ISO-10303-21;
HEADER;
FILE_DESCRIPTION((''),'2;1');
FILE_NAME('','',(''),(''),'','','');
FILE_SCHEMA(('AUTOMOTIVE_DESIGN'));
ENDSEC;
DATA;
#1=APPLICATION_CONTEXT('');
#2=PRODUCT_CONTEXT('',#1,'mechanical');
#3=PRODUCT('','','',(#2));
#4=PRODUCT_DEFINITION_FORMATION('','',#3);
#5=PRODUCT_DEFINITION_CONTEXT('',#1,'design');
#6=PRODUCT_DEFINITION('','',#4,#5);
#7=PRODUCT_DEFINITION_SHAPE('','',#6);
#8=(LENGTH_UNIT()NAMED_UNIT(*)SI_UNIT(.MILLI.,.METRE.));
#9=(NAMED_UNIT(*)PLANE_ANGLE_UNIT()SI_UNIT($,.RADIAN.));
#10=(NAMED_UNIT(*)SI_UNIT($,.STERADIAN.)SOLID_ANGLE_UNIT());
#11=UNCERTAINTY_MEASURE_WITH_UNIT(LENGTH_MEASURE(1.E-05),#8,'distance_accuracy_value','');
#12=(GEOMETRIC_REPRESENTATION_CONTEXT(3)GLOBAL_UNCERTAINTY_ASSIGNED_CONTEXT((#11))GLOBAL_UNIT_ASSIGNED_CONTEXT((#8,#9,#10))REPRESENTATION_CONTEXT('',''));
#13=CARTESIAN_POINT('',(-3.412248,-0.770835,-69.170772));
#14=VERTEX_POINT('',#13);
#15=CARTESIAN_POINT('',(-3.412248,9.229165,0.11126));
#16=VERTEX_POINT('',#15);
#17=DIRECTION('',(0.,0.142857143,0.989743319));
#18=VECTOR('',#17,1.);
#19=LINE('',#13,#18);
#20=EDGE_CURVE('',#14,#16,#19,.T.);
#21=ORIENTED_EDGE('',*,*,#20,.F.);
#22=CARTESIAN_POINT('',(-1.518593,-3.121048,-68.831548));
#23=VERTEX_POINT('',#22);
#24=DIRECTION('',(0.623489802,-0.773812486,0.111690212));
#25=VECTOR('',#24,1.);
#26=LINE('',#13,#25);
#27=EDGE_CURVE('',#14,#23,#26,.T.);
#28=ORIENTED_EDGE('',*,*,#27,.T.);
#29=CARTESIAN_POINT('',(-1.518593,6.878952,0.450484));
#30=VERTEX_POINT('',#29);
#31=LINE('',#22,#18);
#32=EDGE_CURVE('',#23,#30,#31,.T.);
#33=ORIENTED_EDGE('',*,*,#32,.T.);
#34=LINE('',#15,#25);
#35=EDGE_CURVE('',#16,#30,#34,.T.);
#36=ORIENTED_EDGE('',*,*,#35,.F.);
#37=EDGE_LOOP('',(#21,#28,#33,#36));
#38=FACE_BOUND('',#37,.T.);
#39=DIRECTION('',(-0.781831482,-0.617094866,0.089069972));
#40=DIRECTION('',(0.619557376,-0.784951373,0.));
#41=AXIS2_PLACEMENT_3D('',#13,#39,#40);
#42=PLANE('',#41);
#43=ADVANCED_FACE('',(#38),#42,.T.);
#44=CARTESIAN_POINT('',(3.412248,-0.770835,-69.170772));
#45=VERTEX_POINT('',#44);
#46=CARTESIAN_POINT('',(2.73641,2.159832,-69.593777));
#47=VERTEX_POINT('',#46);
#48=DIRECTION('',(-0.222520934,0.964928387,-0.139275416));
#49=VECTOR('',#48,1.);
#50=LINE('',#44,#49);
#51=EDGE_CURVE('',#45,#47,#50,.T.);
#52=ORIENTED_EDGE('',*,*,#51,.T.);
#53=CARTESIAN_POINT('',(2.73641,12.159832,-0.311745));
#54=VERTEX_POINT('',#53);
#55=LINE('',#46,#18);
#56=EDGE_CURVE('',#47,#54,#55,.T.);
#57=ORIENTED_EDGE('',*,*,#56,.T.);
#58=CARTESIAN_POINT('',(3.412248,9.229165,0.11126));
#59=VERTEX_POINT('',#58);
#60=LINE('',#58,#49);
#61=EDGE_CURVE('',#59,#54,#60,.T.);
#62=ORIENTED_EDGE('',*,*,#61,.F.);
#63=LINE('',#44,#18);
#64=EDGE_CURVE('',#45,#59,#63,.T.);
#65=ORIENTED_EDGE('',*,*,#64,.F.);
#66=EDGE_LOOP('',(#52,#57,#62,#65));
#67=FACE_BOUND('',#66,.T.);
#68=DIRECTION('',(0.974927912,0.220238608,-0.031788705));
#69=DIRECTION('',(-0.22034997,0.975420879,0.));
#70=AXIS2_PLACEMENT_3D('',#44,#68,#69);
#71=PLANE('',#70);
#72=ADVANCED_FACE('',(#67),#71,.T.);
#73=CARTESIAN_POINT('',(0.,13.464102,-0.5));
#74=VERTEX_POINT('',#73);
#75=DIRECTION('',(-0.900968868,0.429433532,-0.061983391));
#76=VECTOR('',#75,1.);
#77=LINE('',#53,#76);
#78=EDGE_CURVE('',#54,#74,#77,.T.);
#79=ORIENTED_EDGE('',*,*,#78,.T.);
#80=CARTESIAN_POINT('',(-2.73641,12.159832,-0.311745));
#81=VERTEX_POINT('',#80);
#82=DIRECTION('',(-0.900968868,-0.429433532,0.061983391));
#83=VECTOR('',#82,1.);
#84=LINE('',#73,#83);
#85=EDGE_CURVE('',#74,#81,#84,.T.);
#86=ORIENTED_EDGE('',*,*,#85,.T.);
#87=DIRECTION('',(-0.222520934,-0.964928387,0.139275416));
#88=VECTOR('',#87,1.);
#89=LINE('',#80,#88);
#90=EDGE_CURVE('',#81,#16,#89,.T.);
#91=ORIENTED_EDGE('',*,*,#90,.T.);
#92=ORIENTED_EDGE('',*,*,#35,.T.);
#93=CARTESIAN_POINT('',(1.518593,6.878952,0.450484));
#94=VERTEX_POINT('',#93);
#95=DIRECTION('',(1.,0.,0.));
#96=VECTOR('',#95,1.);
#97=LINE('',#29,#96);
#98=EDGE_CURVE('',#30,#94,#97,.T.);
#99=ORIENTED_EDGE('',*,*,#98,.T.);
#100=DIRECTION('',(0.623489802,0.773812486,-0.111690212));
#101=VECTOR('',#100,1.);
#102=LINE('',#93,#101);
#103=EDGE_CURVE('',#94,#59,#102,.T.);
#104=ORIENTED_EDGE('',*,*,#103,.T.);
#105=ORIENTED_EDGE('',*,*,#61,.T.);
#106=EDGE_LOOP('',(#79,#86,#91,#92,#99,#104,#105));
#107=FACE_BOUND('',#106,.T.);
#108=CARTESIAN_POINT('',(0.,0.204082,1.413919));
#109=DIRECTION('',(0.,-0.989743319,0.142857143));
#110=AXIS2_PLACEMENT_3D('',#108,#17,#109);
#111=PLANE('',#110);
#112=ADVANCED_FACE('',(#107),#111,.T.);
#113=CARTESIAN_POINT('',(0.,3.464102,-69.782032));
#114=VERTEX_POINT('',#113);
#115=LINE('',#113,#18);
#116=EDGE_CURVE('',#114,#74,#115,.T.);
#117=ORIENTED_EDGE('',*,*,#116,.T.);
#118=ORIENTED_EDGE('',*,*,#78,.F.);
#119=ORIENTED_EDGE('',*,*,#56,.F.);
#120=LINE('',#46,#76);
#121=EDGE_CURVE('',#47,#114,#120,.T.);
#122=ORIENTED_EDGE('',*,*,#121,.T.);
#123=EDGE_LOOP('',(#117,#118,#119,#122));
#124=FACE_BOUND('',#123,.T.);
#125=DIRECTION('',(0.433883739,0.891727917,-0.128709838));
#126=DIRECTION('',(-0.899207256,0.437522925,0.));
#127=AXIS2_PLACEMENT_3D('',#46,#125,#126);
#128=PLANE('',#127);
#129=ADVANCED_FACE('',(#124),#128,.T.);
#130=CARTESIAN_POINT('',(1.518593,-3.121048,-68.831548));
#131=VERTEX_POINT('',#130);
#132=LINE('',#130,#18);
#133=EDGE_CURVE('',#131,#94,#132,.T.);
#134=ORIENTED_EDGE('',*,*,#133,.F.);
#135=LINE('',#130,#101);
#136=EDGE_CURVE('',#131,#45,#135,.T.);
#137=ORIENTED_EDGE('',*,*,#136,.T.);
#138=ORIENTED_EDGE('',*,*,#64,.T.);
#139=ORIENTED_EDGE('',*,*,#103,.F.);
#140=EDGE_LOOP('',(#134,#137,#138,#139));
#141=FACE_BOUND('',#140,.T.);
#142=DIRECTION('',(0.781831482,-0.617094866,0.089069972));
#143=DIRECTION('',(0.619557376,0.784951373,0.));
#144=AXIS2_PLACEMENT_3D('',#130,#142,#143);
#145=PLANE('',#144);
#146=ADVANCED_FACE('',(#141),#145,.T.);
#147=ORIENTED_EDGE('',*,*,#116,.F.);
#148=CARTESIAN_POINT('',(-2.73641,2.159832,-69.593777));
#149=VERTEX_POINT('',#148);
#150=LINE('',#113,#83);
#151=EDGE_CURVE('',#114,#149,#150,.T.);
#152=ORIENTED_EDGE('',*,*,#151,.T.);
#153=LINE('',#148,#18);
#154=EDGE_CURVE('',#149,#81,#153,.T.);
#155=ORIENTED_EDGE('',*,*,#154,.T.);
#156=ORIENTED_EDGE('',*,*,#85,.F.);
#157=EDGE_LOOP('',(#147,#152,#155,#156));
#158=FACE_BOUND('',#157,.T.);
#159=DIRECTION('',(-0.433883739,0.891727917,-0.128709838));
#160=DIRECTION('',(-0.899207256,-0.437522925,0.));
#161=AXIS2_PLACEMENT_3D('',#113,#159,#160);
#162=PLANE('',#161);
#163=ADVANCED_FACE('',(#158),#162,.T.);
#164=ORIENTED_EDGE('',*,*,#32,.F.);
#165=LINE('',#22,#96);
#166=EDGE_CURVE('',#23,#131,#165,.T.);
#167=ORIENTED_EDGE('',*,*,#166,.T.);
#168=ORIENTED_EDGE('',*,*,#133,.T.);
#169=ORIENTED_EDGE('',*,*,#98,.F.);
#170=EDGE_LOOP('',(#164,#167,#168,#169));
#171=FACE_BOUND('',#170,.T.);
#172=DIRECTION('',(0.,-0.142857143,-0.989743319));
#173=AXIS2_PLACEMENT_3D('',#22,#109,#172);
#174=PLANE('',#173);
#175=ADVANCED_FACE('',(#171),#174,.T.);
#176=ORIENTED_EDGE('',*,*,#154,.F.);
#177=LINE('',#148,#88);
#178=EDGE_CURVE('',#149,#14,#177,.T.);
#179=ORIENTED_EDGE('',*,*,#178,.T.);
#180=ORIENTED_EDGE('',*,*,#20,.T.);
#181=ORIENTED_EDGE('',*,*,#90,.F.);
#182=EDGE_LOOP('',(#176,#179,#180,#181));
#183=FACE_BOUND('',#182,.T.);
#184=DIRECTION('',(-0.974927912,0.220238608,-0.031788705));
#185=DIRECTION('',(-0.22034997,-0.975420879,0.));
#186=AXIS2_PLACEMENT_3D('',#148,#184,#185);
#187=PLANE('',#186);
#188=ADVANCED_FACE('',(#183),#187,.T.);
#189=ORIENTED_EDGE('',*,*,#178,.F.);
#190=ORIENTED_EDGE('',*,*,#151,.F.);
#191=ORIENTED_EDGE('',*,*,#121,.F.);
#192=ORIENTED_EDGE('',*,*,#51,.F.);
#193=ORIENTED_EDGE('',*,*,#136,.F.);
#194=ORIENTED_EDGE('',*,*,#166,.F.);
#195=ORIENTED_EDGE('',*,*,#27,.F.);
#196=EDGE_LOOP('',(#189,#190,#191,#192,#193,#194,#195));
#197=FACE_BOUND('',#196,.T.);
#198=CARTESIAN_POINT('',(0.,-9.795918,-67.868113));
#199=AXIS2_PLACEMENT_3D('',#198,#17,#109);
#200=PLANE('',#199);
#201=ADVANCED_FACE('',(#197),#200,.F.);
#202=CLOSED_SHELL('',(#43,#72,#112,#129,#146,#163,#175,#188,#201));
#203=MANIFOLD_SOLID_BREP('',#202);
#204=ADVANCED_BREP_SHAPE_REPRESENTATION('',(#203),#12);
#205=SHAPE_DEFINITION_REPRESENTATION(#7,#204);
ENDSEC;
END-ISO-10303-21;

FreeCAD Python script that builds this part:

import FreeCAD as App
import Part
import Sketcher

V = App.Vector
Q = App.Units.Quantity

doc = App.newDocument("Part")
params = doc.addObject("Spreadsheet::Sheet", "Params")
for row, (alias, value) in enumerate([
    ("sketch2_width", "70 mm"),
], start=1):
    params.set(f"A{row}", alias)
    params.set(f"B{row}", "=" + value)
    params.setAlias(f"B{row}", alias)

body = doc.addObject("PartDesign::Body", "Body")

# Sketch on an angled plane
sketch1 = body.newObject("Sketcher::SketchObject", "Sketch")
sketch1.Placement = App.Placement(V(0, 0, -69.282032), App.Rotation(V(1, 0, 0), V(0, 0.989743319, -0.142857143), V(0, 0.142857143, 0.989743319), "ZXY"))
sketch1.addGeometry(Part.LineSegment(V(0, 3.5, 0), V(-2.7, 2.2, 0)), False)
sketch1.addGeometry(Part.LineSegment(V(-2.7, 2.2, 0), V(-3.4, -0.8, 0)), False)
sketch1.addGeometry(Part.LineSegment(V(-3.4, -0.8, 0), V(-1.5, -3.2, 0)), False)
sketch1.addGeometry(Part.LineSegment(V(-1.5, -3.2, 0), V(1.5, -3.2, 0)), False)
sketch1.addGeometry(Part.LineSegment(V(1.5, -3.2, 0), V(3.4, -0.8, 0)), False)
sketch1.addGeometry(Part.LineSegment(V(3.4, -0.8, 0), V(2.7, 2.2, 0)), False)
sketch1.addGeometry(Part.LineSegment(V(2.7, 2.2, 0), V(0, 3.5, 0)), False)
sketch1.addConstraint(Sketcher.Constraint("Coincident", 0, 2, 1, 1))
sketch1.addConstraint(Sketcher.Constraint("Coincident", 1, 2, 2, 1))
sketch1.addConstraint(Sketcher.Constraint("Coincident", 2, 2, 3, 1))
sketch1.addConstraint(Sketcher.Constraint("Coincident", 3, 2, 4, 1))
sketch1.addConstraint(Sketcher.Constraint("Coincident", 4, 2, 5, 1))
sketch1.addConstraint(Sketcher.Constraint("Coincident", 5, 2, 6, 1))
sketch1.addConstraint(Sketcher.Constraint("Coincident", 6, 2, 0, 1))
sketch1.addConstraint(Sketcher.Constraint("Horizontal", 3))
sketch1.addConstraint(Sketcher.Constraint("Symmetric", 1, 2, 4, 2, -2))
sketch1.addConstraint(Sketcher.Constraint("Symmetric", 0, 2, 5, 2, -2))
sketch1.addConstraint(Sketcher.Constraint("PointOnObject", 6, 2, -2))
sketch1.addConstraint(Sketcher.Constraint("Equal", 0, 1))
sketch1.addConstraint(Sketcher.Constraint("Equal", 1, 2))
sketch1.addConstraint(Sketcher.Constraint("Equal", 2, 4))
sketch1.addConstraint(Sketcher.Constraint("DistanceY", -1, 1, 6, 2, Q("3.5 mm")))
sketch1.addConstraint(Sketcher.Constraint("DistanceX", 3, 1, 3, 2, Q("3.037186 mm")))
sketch1.addConstraint(Sketcher.Constraint("DistanceX", 0, 2, -1, 1, Q("2.73641 mm")))
sketch1.addConstraint(Sketcher.Constraint("DistanceY", 2, 2, -1, 1, Q("3.153391 mm")))
sketch1.addConstraint(Sketcher.Constraint("DistanceX", 1, 2, 3, 2, Q("4.930841 mm")))

# Sketch on an angled plane
sketch2 = body.newObject("Sketcher::SketchObject", "Sketch001")
sketch2.Placement = App.Placement(V(0, 9.795918, -1.413919), App.Rotation(V(0, -0.142857143, -0.989743319), V(1.000000001, 0, 0), V(0, -0.989743319, 0.142857143), "ZXY"))
sketch2.addGeometry(Part.LineSegment(V(69, 0, 0), V(-1, 0, 0)), False)
sketch2.addConstraint(Sketcher.Constraint("Horizontal", 0))
sketch2.addConstraint(Sketcher.Constraint("PointOnObject", 0, 1, -1))
sketch2.addConstraint(Sketcher.Constraint("DistanceX", 0, 2, 0, 1, Q("70 mm")))
sketch2.addConstraint(Sketcher.Constraint("DistanceX", -1, 1, 0, 1, Q("68.571429 mm")))
sketch2.setExpression("Constraints[2]", "Params.sketch2_width")
doc.recompute()

additivepipe = body.newObject("PartDesign::AdditivePipe", "AdditivePipe")
additivepipe.Profile = sketch1
additivepipe.Spine = (sketch2, ["Edge1"])

doc.recompute()
